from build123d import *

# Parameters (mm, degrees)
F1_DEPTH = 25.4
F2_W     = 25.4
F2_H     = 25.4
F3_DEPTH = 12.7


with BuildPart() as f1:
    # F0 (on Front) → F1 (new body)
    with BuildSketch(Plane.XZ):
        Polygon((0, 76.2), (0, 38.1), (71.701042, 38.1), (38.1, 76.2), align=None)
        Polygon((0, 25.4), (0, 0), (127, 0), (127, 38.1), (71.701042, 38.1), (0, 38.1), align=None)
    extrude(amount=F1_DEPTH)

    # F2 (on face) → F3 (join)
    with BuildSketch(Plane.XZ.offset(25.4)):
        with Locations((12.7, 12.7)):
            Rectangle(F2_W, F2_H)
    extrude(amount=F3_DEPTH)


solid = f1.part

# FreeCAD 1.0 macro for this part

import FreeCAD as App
import Part
import Sketcher

V = App.Vector
Q = App.Units.Quantity


def add_polygon(sketch, points):
    """Adds a closed chain of lines whose ends are joined by coincident constraints."""
    first, n = sketch.GeometryCount, len(points)
    for a, b in zip(points, points[1:] + points[:1]):
        sketch.addGeometry(Part.LineSegment(App.Vector(*a, 0), App.Vector(*b, 0)), False)
    for i in range(n):
        sketch.addConstraint(Sketcher.Constraint("Coincident", first + i, 2, first + (i + 1) % n, 1))

doc = App.newDocument("Part")
body = doc.addObject("PartDesign::Body", "Body")

# Sketch on XZ plane
sketch1 = body.newObject("Sketcher::SketchObject", "Sketch")
sketch1.AttachmentSupport = (doc.getObject("XZ_Plane"), [""])
sketch1.MapMode = "FlatFace"
add_polygon(sketch1, [(0, 76), (0, 0), (127, 0), (127, 38), (72, 38), (38, 76)])  # lines 0-5
sketch1.addConstraint([
    Sketcher.Constraint("Vertical", 0),
    Sketcher.Constraint("Horizontal", 1),
    Sketcher.Constraint("Vertical", 2),
    Sketcher.Constraint("Horizontal", 3),
    Sketcher.Constraint("Horizontal", 5),
    Sketcher.Constraint("Coincident", 0, 2, -1, 1),
    Sketcher.Constraint("Equal", 5, 2),
    Sketcher.Constraint("DistanceX", 1, 1, 1, 2, Q("5 in")),
    Sketcher.Constraint("DistanceY", 0, 2, 0, 1, Q("3 in")),
    Sketcher.Constraint("Distance", 4, Q("2 in")),
    Sketcher.Constraint("DistanceX", 5, 2, 5, 1, Q("1.5 in")),
])
pad1 = body.newObject("PartDesign::Pad", "Pad")
pad1.Profile = sketch1
pad1.Length = Q("1 in")

# Sketch on XZ plane
sketch2 = body.newObject("Sketcher::SketchObject", "Sketch001")
sketch2.AttachmentSupport = (doc.getObject("XZ_Plane"), [""])
sketch2.MapMode = "FlatFace"
sketch2.AttachmentOffset = App.Placement(V(0, 0, 1 * 25.4), App.Rotation())
add_polygon(sketch2, [(0, 25), (0, 0), (25, 0), (25, 25)])  # lines 0-3
sketch2.addConstraint([
    Sketcher.Constraint("Vertical", 0),
    Sketcher.Constraint("Horizontal", 1),
    Sketcher.Constraint("Vertical", 2),
    Sketcher.Constraint("Horizontal", 3),
    Sketcher.Constraint("Coincident", 0, 2, -1, 1),
    Sketcher.Constraint("Equal", 3, 0),
    Sketcher.Constraint("DistanceX", 1, 1, 1, 2, Q("1 in")),
])
pad2 = body.newObject("PartDesign::Pad", "Pad001")
pad2.Profile = sketch2
pad2.Length = Q("0.5 in")

doc.recompute()
